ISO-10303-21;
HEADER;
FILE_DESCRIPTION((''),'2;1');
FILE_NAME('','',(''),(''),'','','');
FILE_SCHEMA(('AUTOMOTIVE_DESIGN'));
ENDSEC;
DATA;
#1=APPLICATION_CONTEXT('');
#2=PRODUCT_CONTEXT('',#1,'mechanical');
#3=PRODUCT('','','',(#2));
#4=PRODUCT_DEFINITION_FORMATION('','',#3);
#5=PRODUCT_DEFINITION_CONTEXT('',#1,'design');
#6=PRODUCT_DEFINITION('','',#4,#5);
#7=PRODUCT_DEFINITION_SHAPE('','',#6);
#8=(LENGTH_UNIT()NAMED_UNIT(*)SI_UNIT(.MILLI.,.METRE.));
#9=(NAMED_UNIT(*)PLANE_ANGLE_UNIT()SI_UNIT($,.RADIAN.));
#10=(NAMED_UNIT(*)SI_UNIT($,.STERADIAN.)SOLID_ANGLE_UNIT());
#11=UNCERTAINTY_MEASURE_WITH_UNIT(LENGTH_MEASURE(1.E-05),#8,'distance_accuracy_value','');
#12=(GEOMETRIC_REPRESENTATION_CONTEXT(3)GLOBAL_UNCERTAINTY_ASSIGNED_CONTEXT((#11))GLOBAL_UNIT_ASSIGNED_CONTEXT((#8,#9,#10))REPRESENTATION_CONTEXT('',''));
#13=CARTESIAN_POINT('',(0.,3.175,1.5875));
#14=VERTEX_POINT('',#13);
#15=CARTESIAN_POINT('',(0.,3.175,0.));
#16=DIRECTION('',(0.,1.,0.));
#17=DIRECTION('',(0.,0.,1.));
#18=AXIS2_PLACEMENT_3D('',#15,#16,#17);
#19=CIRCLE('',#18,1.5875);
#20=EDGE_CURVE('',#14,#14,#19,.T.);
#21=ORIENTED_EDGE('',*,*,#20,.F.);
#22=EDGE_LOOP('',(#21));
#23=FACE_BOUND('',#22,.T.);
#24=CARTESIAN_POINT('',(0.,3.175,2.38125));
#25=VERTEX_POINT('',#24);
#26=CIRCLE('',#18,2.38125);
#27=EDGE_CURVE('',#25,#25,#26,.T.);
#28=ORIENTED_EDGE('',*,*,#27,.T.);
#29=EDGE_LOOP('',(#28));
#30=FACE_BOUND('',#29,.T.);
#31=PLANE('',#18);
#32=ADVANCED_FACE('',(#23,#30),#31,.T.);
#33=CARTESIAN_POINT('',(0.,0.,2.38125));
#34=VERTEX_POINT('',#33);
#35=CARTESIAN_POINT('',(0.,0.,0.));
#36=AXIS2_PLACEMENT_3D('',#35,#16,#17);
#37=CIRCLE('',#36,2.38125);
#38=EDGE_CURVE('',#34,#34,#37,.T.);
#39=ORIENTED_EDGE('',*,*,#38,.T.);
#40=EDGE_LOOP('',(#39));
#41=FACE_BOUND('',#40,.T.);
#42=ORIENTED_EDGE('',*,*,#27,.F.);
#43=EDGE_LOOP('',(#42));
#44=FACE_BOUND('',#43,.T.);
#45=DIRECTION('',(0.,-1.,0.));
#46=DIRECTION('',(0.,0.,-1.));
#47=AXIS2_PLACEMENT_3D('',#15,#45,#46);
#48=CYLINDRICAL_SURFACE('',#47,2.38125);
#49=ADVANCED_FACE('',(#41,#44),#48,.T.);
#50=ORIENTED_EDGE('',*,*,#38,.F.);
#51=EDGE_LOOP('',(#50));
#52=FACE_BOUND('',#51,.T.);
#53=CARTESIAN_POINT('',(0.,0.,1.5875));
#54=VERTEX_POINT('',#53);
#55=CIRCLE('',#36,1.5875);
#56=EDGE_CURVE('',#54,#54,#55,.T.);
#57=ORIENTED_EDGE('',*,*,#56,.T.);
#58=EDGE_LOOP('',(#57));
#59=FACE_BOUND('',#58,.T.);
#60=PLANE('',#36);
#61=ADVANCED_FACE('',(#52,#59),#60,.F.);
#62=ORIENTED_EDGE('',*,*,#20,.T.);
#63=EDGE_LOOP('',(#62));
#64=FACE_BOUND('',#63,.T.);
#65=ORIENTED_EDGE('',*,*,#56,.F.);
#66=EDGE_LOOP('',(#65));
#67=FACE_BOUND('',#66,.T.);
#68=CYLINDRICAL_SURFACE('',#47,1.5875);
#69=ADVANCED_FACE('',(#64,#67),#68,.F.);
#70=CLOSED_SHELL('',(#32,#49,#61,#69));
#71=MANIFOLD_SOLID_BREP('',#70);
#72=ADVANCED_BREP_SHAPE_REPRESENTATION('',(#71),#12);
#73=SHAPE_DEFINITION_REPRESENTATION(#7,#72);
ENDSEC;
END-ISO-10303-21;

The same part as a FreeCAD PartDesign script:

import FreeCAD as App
import Part
import Sketcher
from FreeCAD import Vector
Q = App.Units.Quantity

doc = App.newDocument("Part")
body = doc.addObject("PartDesign::Body", "Body")

# Sketch on XZ plane
sketch1 = body.newObject("Sketcher::SketchObject", "Sketch")
sketch1.AttachmentSupport = (doc.getObject("XZ_Plane"), [""])
sketch1.MapMode = "FlatFace"
sketch1.addGeometry([
    Part.Circle(Vector(0, 0, 0), Vector(0, 0, 1), 2.4),
    Part.Circle(Vector(0, 0, 0), Vector(0, 0, 1), 1.6),
], False)
sketch1.addConstraint([
    Sketcher.Constraint("Coincident", 0, 3, -1, 1),
    Sketcher.Constraint("Coincident", 1, 3, -1, 1),
    Sketcher.Constraint("Diameter", 0, Q("0.1875 in")),
    Sketcher.Constraint("Diameter", 1, Q("0.125 in")),
])
pad1 = body.newObject("PartDesign::Pad", "Pad")
pad1.Profile = sketch1
pad1.Length = Q("0.125 in")
pad1.Reversed = True

doc.recompute()
